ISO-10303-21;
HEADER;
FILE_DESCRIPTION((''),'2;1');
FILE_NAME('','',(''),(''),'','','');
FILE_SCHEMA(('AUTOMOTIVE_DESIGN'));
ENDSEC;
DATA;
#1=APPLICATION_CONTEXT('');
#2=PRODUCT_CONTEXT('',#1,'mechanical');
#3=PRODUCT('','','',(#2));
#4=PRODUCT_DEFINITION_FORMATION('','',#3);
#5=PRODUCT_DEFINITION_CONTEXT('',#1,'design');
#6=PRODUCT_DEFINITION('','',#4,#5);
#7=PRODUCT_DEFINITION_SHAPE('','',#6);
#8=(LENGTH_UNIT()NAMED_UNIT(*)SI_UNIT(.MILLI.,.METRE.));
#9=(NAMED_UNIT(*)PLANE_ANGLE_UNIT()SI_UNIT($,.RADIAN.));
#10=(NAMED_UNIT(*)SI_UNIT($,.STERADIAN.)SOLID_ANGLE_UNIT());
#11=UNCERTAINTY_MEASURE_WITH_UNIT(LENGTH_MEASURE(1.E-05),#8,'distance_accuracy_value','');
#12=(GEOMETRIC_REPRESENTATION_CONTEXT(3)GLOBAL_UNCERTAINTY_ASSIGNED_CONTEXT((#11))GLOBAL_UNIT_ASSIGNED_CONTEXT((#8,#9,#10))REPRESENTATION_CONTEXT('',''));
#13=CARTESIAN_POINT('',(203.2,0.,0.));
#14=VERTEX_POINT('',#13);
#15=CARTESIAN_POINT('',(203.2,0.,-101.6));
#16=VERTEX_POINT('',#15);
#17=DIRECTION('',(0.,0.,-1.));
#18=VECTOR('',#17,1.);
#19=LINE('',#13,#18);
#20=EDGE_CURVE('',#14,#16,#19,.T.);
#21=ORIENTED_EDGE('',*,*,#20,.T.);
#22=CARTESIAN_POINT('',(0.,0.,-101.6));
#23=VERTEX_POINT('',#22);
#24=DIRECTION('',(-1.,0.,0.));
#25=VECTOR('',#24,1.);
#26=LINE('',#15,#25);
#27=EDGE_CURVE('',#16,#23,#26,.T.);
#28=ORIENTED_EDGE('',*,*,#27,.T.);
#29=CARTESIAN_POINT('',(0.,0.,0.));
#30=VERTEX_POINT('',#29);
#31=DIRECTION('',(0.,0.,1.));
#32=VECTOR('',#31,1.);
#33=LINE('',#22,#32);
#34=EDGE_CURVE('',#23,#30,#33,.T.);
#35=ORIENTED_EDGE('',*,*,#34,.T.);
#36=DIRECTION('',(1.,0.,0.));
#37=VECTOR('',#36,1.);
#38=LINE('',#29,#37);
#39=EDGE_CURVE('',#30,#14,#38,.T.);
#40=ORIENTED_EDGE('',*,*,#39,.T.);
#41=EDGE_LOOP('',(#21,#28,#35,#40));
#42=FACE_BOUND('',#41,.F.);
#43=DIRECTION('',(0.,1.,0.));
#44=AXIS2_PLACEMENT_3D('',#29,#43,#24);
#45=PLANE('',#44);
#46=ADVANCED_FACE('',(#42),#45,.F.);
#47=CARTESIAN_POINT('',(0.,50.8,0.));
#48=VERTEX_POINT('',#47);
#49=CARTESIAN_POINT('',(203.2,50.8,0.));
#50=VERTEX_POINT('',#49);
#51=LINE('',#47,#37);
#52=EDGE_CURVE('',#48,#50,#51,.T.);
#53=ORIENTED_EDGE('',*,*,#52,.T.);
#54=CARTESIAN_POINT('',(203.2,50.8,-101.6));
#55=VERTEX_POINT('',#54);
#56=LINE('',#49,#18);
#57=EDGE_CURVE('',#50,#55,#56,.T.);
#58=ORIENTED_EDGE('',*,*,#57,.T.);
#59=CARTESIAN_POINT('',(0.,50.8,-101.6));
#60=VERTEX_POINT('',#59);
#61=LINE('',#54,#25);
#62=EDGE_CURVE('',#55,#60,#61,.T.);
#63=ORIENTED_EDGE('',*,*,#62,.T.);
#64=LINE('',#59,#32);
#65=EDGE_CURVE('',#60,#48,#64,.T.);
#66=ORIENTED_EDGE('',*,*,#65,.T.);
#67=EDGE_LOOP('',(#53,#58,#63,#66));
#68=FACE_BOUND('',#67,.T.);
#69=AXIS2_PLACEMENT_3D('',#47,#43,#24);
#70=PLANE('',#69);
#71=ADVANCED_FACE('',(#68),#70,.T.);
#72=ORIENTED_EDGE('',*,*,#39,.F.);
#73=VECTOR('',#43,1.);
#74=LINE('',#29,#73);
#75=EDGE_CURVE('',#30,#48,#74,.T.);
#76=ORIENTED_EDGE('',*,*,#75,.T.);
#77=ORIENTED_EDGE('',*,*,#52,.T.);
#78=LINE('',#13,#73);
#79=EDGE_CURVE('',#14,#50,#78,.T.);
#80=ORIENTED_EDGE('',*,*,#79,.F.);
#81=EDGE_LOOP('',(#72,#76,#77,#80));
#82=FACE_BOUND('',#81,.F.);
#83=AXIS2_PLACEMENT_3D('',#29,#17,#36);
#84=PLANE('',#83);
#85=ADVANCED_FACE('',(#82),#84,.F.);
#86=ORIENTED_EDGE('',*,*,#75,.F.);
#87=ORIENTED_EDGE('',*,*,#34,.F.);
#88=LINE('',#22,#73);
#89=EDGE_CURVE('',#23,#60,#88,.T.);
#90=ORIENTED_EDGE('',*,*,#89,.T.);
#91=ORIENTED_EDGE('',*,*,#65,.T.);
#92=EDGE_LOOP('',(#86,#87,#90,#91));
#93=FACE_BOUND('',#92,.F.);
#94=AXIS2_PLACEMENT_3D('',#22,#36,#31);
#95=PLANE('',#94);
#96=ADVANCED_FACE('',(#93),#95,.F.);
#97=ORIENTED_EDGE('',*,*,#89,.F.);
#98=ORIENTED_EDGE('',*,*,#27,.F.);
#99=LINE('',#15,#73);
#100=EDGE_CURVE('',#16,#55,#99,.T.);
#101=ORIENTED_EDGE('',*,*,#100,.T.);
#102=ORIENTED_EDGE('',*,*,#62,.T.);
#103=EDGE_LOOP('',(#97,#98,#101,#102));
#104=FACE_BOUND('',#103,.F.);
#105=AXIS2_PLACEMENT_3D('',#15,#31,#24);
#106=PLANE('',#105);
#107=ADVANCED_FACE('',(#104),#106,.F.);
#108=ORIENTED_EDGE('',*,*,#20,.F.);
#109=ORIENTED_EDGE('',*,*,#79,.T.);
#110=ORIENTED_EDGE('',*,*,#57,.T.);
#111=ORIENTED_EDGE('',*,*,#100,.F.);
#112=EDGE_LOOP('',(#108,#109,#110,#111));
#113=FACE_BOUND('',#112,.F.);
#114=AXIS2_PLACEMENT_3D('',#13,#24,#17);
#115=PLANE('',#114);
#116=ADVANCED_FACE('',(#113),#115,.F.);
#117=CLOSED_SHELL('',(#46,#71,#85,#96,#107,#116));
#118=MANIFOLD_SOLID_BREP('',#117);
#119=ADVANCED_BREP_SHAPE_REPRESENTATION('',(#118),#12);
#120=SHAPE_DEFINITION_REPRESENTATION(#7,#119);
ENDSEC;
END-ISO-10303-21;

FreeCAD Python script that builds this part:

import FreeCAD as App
import Part
import Sketcher

V = App.Vector
Q = App.Units.Quantity

doc = App.newDocument("Part")
body = doc.addObject("PartDesign::Body", "Body")

# Sketch on XZ plane
sketch1 = doc.addObject("Sketcher::SketchObject", "Sketch")
body.addObject(sketch1)
sketch1.AttachmentSupport = (doc.XZ_Plane, [""])
sketch1.MapMode = "FlatFace"
sketch1.addGeometry([
    Part.LineSegment(V(0, -101.6, 0), V(0, 0, 0)),
    Part.LineSegment(V(0, 0, 0), V(203.2, 0, 0)),
    Part.LineSegment(V(203.2, 0, 0), V(203.2, -101.6, 0)),
    Part.LineSegment(V(203.2, -101.6, 0), V(0, -101.6, 0)),
], False)
sketch1.addConstraint([
    Sketcher.Constraint("Coincident", 0, 2, 1, 1),
    Sketcher.Constraint("Coincident", 1, 2, 2, 1),
    Sketcher.Constraint("Coincident", 2, 2, 3, 1),
    Sketcher.Constraint("Coincident", 3, 2, 0, 1),
    Sketcher.Constraint("Vertical", 0),
    Sketcher.Constraint("Horizontal", 1),
    Sketcher.Constraint("Vertical", 2),
    Sketcher.Constraint("Horizontal", 3),
    Sketcher.Constraint("Coincident", 0, 2, -1, 1),
    Sketcher.Constraint("DistanceX", 1, 1, 1, 2, Q("8 in")),
    Sketcher.Constraint("DistanceY", 0, 1, 0, 2, Q("4 in")),
])
pad1 = doc.addObject("PartDesign::Pad", "Pad")
body.addObject(pad1)
pad1.Profile = sketch1
pad1.Length = Q("2 in")
pad1.Reversed = True

doc.recompute()
